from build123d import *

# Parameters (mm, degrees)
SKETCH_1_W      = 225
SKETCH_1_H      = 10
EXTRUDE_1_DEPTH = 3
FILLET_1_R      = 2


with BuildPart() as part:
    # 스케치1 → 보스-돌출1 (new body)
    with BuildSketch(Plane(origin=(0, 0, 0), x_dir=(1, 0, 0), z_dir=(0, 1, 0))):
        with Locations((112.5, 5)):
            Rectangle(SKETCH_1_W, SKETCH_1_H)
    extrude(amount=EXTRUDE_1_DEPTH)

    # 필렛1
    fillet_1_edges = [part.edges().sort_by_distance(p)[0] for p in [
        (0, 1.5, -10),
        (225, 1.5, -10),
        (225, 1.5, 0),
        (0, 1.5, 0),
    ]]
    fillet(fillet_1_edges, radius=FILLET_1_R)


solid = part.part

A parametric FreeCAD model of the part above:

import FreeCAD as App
import Part
import Sketcher
from FreeCAD import Vector


def edges_at(feature, points):
    """Names of the edges that pass closest to the given points."""
    edges = feature.Shape.Edges
    near = lambda p: min(range(len(edges)), key=lambda i: edges[i].distToShape(Part.Vertex(*p))[0])
    return sorted({f"Edge{near(p) + 1}" for p in points})


def add_polygon(sketch, points):
    """Adds a closed chain of lines whose ends are joined by coincident constraints."""
    first, n = sketch.GeometryCount, len(points)
    for a, b in zip(points, points[1:] + points[:1]):
        sketch.addGeometry(Part.LineSegment(App.Vector(*a, 0), App.Vector(*b, 0)), False)
    for i in range(n):
        sketch.addConstraint(Sketcher.Constraint("Coincident", first + i, 2, first + (i + 1) % n, 1))

doc = App.newDocument("Part")
body = doc.addObject("PartDesign::Body", "Body")

# Sketch on XZ plane
sketch1 = doc.addObject("Sketcher::SketchObject", "Sketch")
body.addObject(sketch1)
sketch1.AttachmentSupport = (doc.XZ_Plane, [""])
sketch1.MapMode = "FlatFace"
add_polygon(sketch1, [(0, -10), (0, 0), (225, 0), (225, -10)])  # lines 0-3
sketch1.addConstraint([
    Sketcher.Constraint("Vertical", 0),
    Sketcher.Constraint("Horizontal", 1),
    Sketcher.Constraint("Vertical", 2),
    Sketcher.Constraint("Horizontal", 3),
    Sketcher.Constraint("Coincident", 0, 2, -1, 1),
    Sketcher.Constraint("DistanceX", 1, 1, 1, 2, 225.0),
    Sketcher.Constraint("DistanceY", 0, 1, 0, 2, 10.0),
])
pad1 = doc.addObject("PartDesign::Pad", "Pad")
body.addObject(pad1)
pad1.Profile = sketch1
pad1.Length = 3
pad1.Reversed = True
doc.recompute()

fillet = doc.addObject("PartDesign::Fillet", "Fillet")
body.addObject(fillet)
fillet.Base = (pad1, edges_at(pad1, [
    (0, 1.5, -10),
    (225, 1.5, -10),
    (225, 1.5, 0),
    (0, 1.5, 0),
]))
fillet.Radius = 2

doc.recompute()
